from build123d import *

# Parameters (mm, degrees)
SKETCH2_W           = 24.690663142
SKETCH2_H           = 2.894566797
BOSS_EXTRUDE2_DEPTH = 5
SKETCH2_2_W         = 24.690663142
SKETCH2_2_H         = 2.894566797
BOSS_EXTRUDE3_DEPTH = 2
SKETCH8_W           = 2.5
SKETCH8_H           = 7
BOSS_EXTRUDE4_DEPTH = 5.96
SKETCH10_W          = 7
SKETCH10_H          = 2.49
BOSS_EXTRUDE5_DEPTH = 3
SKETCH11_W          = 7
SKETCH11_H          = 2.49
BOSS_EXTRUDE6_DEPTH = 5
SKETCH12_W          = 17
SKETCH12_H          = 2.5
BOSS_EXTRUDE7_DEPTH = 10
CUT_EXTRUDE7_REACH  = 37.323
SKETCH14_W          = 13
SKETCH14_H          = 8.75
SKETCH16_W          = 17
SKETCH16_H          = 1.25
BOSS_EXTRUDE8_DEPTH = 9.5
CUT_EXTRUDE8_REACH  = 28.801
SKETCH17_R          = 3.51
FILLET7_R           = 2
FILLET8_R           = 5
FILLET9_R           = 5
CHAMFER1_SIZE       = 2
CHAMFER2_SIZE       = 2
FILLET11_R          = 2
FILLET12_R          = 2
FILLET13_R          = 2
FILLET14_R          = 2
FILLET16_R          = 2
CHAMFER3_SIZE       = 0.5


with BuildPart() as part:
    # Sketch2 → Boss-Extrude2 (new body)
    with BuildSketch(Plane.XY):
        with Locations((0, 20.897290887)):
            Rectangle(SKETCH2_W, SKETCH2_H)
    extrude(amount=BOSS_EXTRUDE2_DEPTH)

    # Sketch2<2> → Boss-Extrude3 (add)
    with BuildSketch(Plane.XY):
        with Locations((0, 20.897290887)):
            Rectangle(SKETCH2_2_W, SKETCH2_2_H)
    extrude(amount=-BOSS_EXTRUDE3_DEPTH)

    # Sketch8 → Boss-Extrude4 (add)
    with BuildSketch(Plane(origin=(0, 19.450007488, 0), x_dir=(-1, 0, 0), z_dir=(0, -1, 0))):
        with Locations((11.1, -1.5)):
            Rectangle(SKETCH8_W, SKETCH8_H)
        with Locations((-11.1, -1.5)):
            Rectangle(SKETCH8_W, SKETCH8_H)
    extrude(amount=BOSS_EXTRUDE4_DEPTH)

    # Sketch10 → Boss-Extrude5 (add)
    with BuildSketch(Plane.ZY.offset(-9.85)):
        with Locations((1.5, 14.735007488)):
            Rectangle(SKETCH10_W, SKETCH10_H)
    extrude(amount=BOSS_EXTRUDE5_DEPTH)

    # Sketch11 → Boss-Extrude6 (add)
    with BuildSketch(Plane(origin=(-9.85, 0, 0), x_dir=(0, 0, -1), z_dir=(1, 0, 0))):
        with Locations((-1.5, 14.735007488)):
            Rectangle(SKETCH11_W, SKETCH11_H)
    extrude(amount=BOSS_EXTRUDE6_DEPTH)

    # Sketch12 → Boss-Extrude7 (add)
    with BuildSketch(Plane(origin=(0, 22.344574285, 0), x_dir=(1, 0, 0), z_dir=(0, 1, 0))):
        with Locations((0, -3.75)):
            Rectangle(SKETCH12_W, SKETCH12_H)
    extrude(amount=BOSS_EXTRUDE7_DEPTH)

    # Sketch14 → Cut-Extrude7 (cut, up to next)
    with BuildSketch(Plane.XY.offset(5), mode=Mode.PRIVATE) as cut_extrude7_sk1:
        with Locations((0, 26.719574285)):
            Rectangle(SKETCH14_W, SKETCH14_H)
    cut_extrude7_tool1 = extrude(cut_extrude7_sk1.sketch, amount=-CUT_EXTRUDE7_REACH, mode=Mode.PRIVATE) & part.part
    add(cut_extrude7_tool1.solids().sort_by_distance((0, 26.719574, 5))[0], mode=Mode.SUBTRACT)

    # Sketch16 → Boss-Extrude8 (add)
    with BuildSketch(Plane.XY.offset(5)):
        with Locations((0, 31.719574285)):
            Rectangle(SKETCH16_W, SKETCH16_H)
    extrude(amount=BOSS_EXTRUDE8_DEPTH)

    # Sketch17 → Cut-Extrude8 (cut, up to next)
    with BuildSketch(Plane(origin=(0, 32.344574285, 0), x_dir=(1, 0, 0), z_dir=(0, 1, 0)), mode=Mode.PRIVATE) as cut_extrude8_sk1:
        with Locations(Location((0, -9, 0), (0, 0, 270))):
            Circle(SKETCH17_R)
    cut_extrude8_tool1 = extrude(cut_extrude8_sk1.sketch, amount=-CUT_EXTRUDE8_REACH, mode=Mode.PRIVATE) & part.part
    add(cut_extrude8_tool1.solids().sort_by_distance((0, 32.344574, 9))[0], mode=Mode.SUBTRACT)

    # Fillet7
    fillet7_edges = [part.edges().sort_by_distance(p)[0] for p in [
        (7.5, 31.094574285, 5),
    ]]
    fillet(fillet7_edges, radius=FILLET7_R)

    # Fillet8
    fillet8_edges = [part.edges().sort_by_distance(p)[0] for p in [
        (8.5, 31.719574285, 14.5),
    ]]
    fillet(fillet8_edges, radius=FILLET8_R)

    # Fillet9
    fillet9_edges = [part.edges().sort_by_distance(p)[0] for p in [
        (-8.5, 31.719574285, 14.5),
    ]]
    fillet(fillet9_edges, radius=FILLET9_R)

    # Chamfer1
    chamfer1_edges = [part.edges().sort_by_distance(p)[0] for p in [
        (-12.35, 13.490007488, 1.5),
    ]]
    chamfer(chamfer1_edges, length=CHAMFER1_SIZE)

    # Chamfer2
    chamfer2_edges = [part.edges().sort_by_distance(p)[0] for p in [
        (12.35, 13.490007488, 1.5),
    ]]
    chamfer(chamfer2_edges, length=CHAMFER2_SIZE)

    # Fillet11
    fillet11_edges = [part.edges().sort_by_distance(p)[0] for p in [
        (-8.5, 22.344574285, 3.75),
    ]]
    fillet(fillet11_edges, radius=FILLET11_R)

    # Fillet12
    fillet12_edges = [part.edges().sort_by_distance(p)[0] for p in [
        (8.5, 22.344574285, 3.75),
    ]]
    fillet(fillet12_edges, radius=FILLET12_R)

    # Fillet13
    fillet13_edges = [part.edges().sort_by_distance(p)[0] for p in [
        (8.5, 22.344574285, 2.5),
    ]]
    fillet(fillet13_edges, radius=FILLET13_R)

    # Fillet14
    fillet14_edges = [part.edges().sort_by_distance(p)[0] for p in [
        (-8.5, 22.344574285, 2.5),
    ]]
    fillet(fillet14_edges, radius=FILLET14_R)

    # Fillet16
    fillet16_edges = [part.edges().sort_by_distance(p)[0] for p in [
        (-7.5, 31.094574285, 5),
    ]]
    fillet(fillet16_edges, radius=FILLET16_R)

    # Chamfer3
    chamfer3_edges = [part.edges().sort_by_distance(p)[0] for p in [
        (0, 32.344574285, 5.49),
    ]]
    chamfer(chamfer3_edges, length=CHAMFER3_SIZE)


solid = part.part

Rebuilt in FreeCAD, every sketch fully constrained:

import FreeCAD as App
import Part
import Sketcher

V = App.Vector


def edges_at(feature, points):
    """Names of the edges that pass closest to the given points."""
    edges = feature.Shape.Edges
    near = lambda p: min(range(len(edges)), key=lambda i: edges[i].distToShape(Part.Vertex(*p))[0])
    return sorted({f"Edge{near(p) + 1}" for p in points})


def add_polygon(sketch, points):
    """Adds a closed chain of lines whose ends are joined by coincident constraints."""
    first, n = sketch.GeometryCount, len(points)
    for a, b in zip(points, points[1:] + points[:1]):
        sketch.addGeometry(Part.LineSegment(App.Vector(*a, 0), App.Vector(*b, 0)), False)
    for i in range(n):
        sketch.addConstraint(Sketcher.Constraint("Coincident", first + i, 2, first + (i + 1) % n, 1))

doc = App.newDocument("Part")
body = doc.addObject("PartDesign::Body", "Body")

sketch1 = body.newObject("Sketcher::SketchObject", "Sketch")
sketch1.AttachmentSupport = (doc.getObject("XY_Plane"), [""])
sketch1.MapMode = "FlatFace"
add_polygon(sketch1, [(-12.3, 22.3), (-12.3, 19.5), (12.3, 19.5), (12.3, 22.3)])
sketch1.addConstraint(Sketcher.Constraint("Vertical", 0))
sketch1.addConstraint(Sketcher.Constraint("Horizontal", 1))
sketch1.addConstraint(Sketcher.Constraint("Vertical", 2))
sketch1.addConstraint(Sketcher.Constraint("Horizontal", 3))
sketch1.addConstraint(Sketcher.Constraint("DistanceX", 1, 1, 1, 2, 24.690663))
sketch1.addConstraint(Sketcher.Constraint("DistanceY", 0, 2, 0, 1, 2.894567))
sketch1.addConstraint(Sketcher.Constraint("DistanceX", 0, 2, -1, 1, 12.345332))
sketch1.addConstraint(Sketcher.Constraint("DistanceY", -1, 1, 0, 2, 19.450007))
pad1 = body.newObject("PartDesign::Pad", "Pad")
pad1.Profile = sketch1
pad1.Length = 5

sketch2 = body.newObject("Sketcher::SketchObject", "Sketch001")
sketch2.AttachmentSupport = (doc.getObject("XY_Plane"), [""])
sketch2.MapMode = "FlatFace"
add_polygon(sketch2, [(-12.3, 22.3), (-12.3, 19.5), (12.3, 19.5), (12.3, 22.3)])
sketch2.addConstraint(Sketcher.Constraint("Vertical", 0))
sketch2.addConstraint(Sketcher.Constraint("Horizontal", 1))
sketch2.addConstraint(Sketcher.Constraint("Vertical", 2))
sketch2.addConstraint(Sketcher.Constraint("Horizontal", 3))
sketch2.addConstraint(Sketcher.Constraint("DistanceX", 1, 1, 1, 2, 24.690663))
sketch2.addConstraint(Sketcher.Constraint("DistanceY", 0, 2, 0, 1, 2.894567))
sketch2.addConstraint(Sketcher.Constraint("DistanceX", 0, 2, -1, 1, 12.345332))
sketch2.addConstraint(Sketcher.Constraint("DistanceY", -1, 1, 0, 2, 19.450007))
pad2 = body.newObject("PartDesign::Pad", "Pad001")
pad2.Profile = sketch2
pad2.Length = 2
pad2.Reversed = True

sketch3 = body.newObject("Sketcher::SketchObject", "Sketch002")
sketch3.AttachmentSupport = (doc.getObject("XZ_Plane"), [""])
sketch3.MapMode = "FlatFace"
sketch3.AttachmentOffset = App.Placement(V(0, 0, -19.450007), App.Rotation())
add_polygon(sketch3, [(-9.8, -2), (-9.8, 5), (-12.3, 5), (-12.3, -2)])
add_polygon(sketch3, [(12.3, -2), (12.3, 5), (9.8, 5), (9.8, -2)])
sketch3.addConstraint(Sketcher.Constraint("Vertical", 0))
sketch3.addConstraint(Sketcher.Constraint("Horizontal", 1))
sketch3.addConstraint(Sketcher.Constraint("Vertical", 2))
sketch3.addConstraint(Sketcher.Constraint("Horizontal", 3))
sketch3.addConstraint(Sketcher.Constraint("Vertical", 4))
sketch3.addConstraint(Sketcher.Constraint("Horizontal", 5))
sketch3.addConstraint(Sketcher.Constraint("Vertical", 6))
sketch3.addConstraint(Sketcher.Constraint("Horizontal", 7))
sketch3.addConstraint(Sketcher.Constraint("Symmetric", 1, 2, 4, 2, -2))
sketch3.addConstraint(Sketcher.Constraint("Symmetric", 3, 2, 6, 2, -2))
sketch3.addConstraint(Sketcher.Constraint("DistanceY", 0, 1, 0, 2, 7.0))
sketch3.addConstraint(Sketcher.Constraint("DistanceX", 1, 2, 1, 1, 2.5))
sketch3.addConstraint(Sketcher.Constraint("DistanceY", -1, 1, 0, 2, 5.0))
sketch3.addConstraint(Sketcher.Constraint("DistanceX", 0, 2, 4, 2, 22.2))
pad3 = body.newObject("PartDesign::Pad", "Pad002")
pad3.Profile = sketch3
pad3.Length = 5.96

sketch4 = body.newObject("Sketcher::SketchObject", "Sketch003")
sketch4.AttachmentSupport = (doc.getObject("YZ_Plane"), [""])
sketch4.MapMode = "FlatFace"
sketch4.AttachmentOffset = App.Placement(V(0, 0, 9.85), App.Rotation())
add_polygon(sketch4, [(16, -2), (13.5, -2), (13.5, 5), (16, 5)])
sketch4.addConstraint(Sketcher.Constraint("Horizontal", 0))
sketch4.addConstraint(Sketcher.Constraint("Vertical", 1))
sketch4.addConstraint(Sketcher.Constraint("Horizontal", 2))
sketch4.addConstraint(Sketcher.Constraint("Vertical", 3))
sketch4.addConstraint(Sketcher.Constraint("DistanceY", 1, 1, 1, 2, 7.0))
sketch4.addConstraint(Sketcher.Constraint("DistanceY", 0, 2, -1, 1, 2.0))
sketch4.addConstraint(Sketcher.Constraint("DistanceX", 0, 2, 0, 1, 2.49))
sketch4.addConstraint(Sketcher.Constraint("DistanceX", -1, 1, 0, 2, 13.490007))
pad4 = body.newObject("PartDesign::Pad", "Pad003")
pad4.Profile = sketch4
pad4.Length = 3
pad4.Reversed = True

sketch5 = body.newObject("Sketcher::SketchObject", "Sketch004")
sketch5.AttachmentSupport = (doc.getObject("YZ_Plane"), [""])
sketch5.MapMode = "FlatFace"
sketch5.AttachmentOffset = App.Placement(V(0, 0, -9.85), App.Rotation())
add_polygon(sketch5, [(16, 5), (13.5, 5), (13.5, -2), (16, -2)])
sketch5.addConstraint(Sketcher.Constraint("Horizontal", 0))
sketch5.addConstraint(Sketcher.Constraint("Vertical", 1))
sketch5.addConstraint(Sketcher.Constraint("Horizontal", 2))
sketch5.addConstraint(Sketcher.Constraint("Vertical", 3))
sketch5.addConstraint(Sketcher.Constraint("DistanceY", 1, 2, 1, 1, 7.0))
sketch5.addConstraint(Sketcher.Constraint("DistanceY", -1, 1, 0, 2, 5.0))
sketch5.addConstraint(Sketcher.Constraint("DistanceX", 0, 2, 0, 1, 2.49))
sketch5.addConstraint(Sketcher.Constraint("DistanceX", -1, 1, 0, 2, 13.490007))
pad5 = body.newObject("PartDesign::Pad", "Pad004")
pad5.Profile = sketch5
pad5.Length = 5

sketch6 = body.newObject("Sketcher::SketchObject", "Sketch005")
sketch6.AttachmentSupport = (doc.getObject("XZ_Plane"), [""])
sketch6.MapMode = "FlatFace"
sketch6.AttachmentOffset = App.Placement(V(0, 0, -22.344574), App.Rotation())
add_polygon(sketch6, [(-8.5, 2.5), (-8.5, 5), (8.5, 5), (8.5, 2.5)])
sketch6.addConstraint(Sketcher.Constraint("Vertical", 0))
sketch6.addConstraint(Sketcher.Constraint("Horizontal", 1))
sketch6.addConstraint(Sketcher.Constraint("Vertical", 2))
sketch6.addConstraint(Sketcher.Constraint("Horizontal", 3))
sketch6.addConstraint(Sketcher.Constraint("DistanceX", 1, 1, 1, 2, 17.0))
sketch6.addConstraint(Sketcher.Constraint("DistanceY", 0, 1, 0, 2, 2.5))
sketch6.addConstraint(Sketcher.Constraint("DistanceY", -1, 1, 0, 2, 5.0))
sketch6.addConstraint(Sketcher.Constraint("DistanceX", 0, 2, -1, 1, 8.5))
pad6 = body.newObject("PartDesign::Pad", "Pad005")
pad6.Profile = sketch6
pad6.Length = 10
pad6.Reversed = True

sketch7 = body.newObject("Sketcher::SketchObject", "Sketch006")
sketch7.AttachmentSupport = (doc.getObject("XY_Plane"), [""])
sketch7.MapMode = "FlatFace"
sketch7.AttachmentOffset = App.Placement(V(0, 0, 5), App.Rotation())
add_polygon(sketch7, [(-6, 31), (-6, 22), (6, 22), (6, 31)])
sketch7.addConstraint(Sketcher.Constraint("Vertical", 0))
sketch7.addConstraint(Sketcher.Constraint("Horizontal", 1))
sketch7.addConstraint(Sketcher.Constraint("Vertical", 2))
sketch7.addConstraint(Sketcher.Constraint("Horizontal", 3))
sketch7.addConstraint(Sketcher.Constraint("DistanceX", 1, 1, 1, 2, 13.0))
sketch7.addConstraint(Sketcher.Constraint("DistanceY", 0, 2, 0, 1, 8.75))
sketch7.addConstraint(Sketcher.Constraint("DistanceX", 0, 2, -1, 1, 6.5))
sketch7.addConstraint(Sketcher.Constraint("DistanceY", -1, 1, 0, 2, 22.344574))
pocket1 = body.newObject("PartDesign::Pocket", "Pocket")
pocket1.Profile = sketch7
pocket1.Type = "UpToFirst"

sketch8 = body.newObject("Sketcher::SketchObject", "Sketch007")
sketch8.AttachmentSupport = (doc.getObject("XY_Plane"), [""])
sketch8.MapMode = "FlatFace"
sketch8.AttachmentOffset = App.Placement(V(0, 0, 5), App.Rotation())
add_polygon(sketch8, [(-8.5, 32.3), (-8.5, 31.1), (8.5, 31.1), (8.5, 32.3)])
sketch8.addConstraint(Sketcher.Constraint("Vertical", 0))
sketch8.addConstraint(Sketcher.Constraint("Horizontal", 1))
sketch8.addConstraint(Sketcher.Constraint("Vertical", 2))
sketch8.addConstraint(Sketcher.Constraint("Horizontal", 3))
sketch8.addConstraint(Sketcher.Constraint("DistanceX", 1, 1, 1, 2, 17.0))
sketch8.addConstraint(Sketcher.Constraint("DistanceY", 0, 2, 0, 1, 1.25))
sketch8.addConstraint(Sketcher.Constraint("DistanceX", 0, 2, -1, 1, 8.5))
sketch8.addConstraint(Sketcher.Constraint("DistanceY", -1, 1, 0, 2, 31.094574))
pad7 = body.newObject("PartDesign::Pad", "Pad006")
pad7.Profile = sketch8
pad7.Length = 9.5

sketch9 = body.newObject("Sketcher::SketchObject", "Sketch008")
sketch9.AttachmentSupport = (doc.getObject("XZ_Plane"), [""])
sketch9.MapMode = "FlatFace"
sketch9.AttachmentOffset = App.Placement(V(0, 0, -32.344574), App.Rotation())
sketch9.addGeometry(Part.Circle(V(0, 9, 0), V(0, 0, 1), 3.5), False)
sketch9.addConstraint(Sketcher.Constraint("PointOnObject", 0, 3, -2))
sketch9.addConstraint(Sketcher.Constraint("Diameter", 0, 7.02))
sketch9.addConstraint(Sketcher.Constraint("DistanceY", -1, 1, 0, 3, 9.0))
pocket2 = body.newObject("PartDesign::Pocket", "Pocket001")
pocket2.Profile = sketch9
pocket2.Type = "UpToFirst"
pocket2.Reversed = True
doc.recompute()

fillet = body.newObject("PartDesign::Fillet", "Fillet")
fillet.Base = (pocket2, edges_at(pocket2, [(7.5, 31.095, 5)]))
fillet.Radius = 2
doc.recompute()

fillet2 = body.newObject("PartDesign::Fillet", "Fillet001")
fillet2.Base = (fillet, edges_at(fillet, [(8.5, 31.72, 14.5)]))
fillet2.Radius = 5
doc.recompute()

fillet3 = body.newObject("PartDesign::Fillet", "Fillet002")
fillet3.Base = (fillet2, edges_at(fillet2, [(-8.5, 31.72, 14.5)]))
fillet3.Radius = 5
doc.recompute()

chamfer = body.newObject("PartDesign::Chamfer", "Chamfer")
chamfer.Base = (fillet3, edges_at(fillet3, [(-12.35, 13.49, 1.5)]))
chamfer.Size = 2
doc.recompute()

chamfer2 = body.newObject("PartDesign::Chamfer", "Chamfer001")
chamfer2.Base = (chamfer, edges_at(chamfer, [(12.35, 13.49, 1.5)]))
chamfer2.Size = 2
doc.recompute()

fillet4 = body.newObject("PartDesign::Fillet", "Fillet003")
fillet4.Base = (chamfer2, edges_at(chamfer2, [(-8.5, 22.345, 3.75)]))
fillet4.Radius = 2
doc.recompute()

fillet5 = body.newObject("PartDesign::Fillet", "Fillet004")
fillet5.Base = (fillet4, edges_at(fillet4, [(8.5, 22.345, 3.75)]))
fillet5.Radius = 2
doc.recompute()

fillet6 = body.newObject("PartDesign::Fillet", "Fillet005")
fillet6.Base = (fillet5, edges_at(fillet5, [(9.5, 22.345, 2.5)]))
fillet6.Radius = 2
doc.recompute()

fillet7 = body.newObject("PartDesign::Fillet", "Fillet006")
fillet7.Base = (fillet6, edges_at(fillet6, [(-7.5, 22.345, 2.5)]))
fillet7.Radius = 2
doc.recompute()

fillet8 = body.newObject("PartDesign::Fillet", "Fillet007")
fillet8.Base = (fillet7, edges_at(fillet7, [(-7.5, 31.095, 5)]))
fillet8.Radius = 2
doc.recompute()

chamfer3 = body.newObject("PartDesign::Chamfer", "Chamfer002")
chamfer3.Base = (fillet8, edges_at(fillet8, [(0, 32.345, 5.49)]))
chamfer3.Size = 0.5

doc.recompute()
